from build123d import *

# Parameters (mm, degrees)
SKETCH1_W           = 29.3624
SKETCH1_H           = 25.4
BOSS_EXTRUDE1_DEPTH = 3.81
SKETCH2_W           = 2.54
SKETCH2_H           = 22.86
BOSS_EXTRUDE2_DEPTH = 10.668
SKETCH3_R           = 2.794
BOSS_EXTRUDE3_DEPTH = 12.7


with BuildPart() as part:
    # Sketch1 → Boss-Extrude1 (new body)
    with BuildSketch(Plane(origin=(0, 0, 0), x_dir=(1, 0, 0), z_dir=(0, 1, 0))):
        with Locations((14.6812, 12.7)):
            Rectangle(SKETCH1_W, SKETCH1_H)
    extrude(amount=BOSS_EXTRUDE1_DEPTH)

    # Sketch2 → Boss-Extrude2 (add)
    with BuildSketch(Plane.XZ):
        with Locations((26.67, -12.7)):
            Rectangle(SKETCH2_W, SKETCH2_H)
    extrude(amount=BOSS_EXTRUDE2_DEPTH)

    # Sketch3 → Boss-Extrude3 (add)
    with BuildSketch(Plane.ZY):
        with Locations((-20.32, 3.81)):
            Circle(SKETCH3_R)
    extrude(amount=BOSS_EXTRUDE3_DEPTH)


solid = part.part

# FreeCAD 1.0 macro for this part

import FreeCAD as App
import Part
import Sketcher
Q = App.Units.Quantity

doc = App.newDocument("Part")
body = doc.addObject("PartDesign::Body", "Body")

# Sketch on XZ plane
sketch1 = doc.addObject("Sketcher::SketchObject", "Sketch")
body.addObject(sketch1)
sketch1.AttachmentSupport = (doc.XZ_Plane, [""])
sketch1.MapMode = "FlatFace"
sketch1.addGeometry([
    Part.LineSegment(App.Vector(0, -25, 0), App.Vector(0, 0, 0)),
    Part.LineSegment(App.Vector(0, 0, 0), App.Vector(29, 0, 0)),
    Part.LineSegment(App.Vector(29, 0, 0), App.Vector(29, -25, 0)),
    Part.LineSegment(App.Vector(29, -25, 0), App.Vector(0, -25, 0)),
], False)
sketch1.addConstraint([
    Sketcher.Constraint("Coincident", 0, 2, 1, 1),
    Sketcher.Constraint("Coincident", 1, 2, 2, 1),
    Sketcher.Constraint("Coincident", 2, 2, 3, 1),
    Sketcher.Constraint("Coincident", 3, 2, 0, 1),
    Sketcher.Constraint("Vertical", 0),
    Sketcher.Constraint("Horizontal", 1),
    Sketcher.Constraint("Vertical", 2),
    Sketcher.Constraint("Horizontal", 3),
    Sketcher.Constraint("Coincident", 0, 2, -1, 1),
    Sketcher.Constraint("DistanceY", 0, 1, 0, 2, Q("1 in")),
    Sketcher.Constraint("DistanceX", 1, 1, 1, 2, Q("1.156 in")),
])
pad1 = doc.addObject("PartDesign::Pad", "Pad")
body.addObject(pad1)
pad1.Profile = sketch1
pad1.Length = Q("0.15 in")
pad1.Reversed = True

# Sketch on XZ plane
sketch2 = doc.addObject("Sketcher::SketchObject", "Sketch001")
body.addObject(sketch2)
sketch2.AttachmentSupport = (doc.XZ_Plane, [""])
sketch2.MapMode = "FlatFace"
sketch2.addGeometry([
    Part.LineSegment(App.Vector(25.4, -1.3, 0), App.Vector(25.4, -24.1, 0)),
    Part.LineSegment(App.Vector(25.4, -24.1, 0), App.Vector(27.9, -24.1, 0)),
    Part.LineSegment(App.Vector(27.9, -24.1, 0), App.Vector(27.9, -1.3, 0)),
    Part.LineSegment(App.Vector(27.9, -1.3, 0), App.Vector(25.4, -1.3, 0)),
], False)
sketch2.addConstraint([
    Sketcher.Constraint("Coincident", 0, 2, 1, 1),
    Sketcher.Constraint("Coincident", 1, 2, 2, 1),
    Sketcher.Constraint("Coincident", 2, 2, 3, 1),
    Sketcher.Constraint("Coincident", 3, 2, 0, 1),
    Sketcher.Constraint("Vertical", 0),
    Sketcher.Constraint("Horizontal", 1),
    Sketcher.Constraint("Vertical", 2),
    Sketcher.Constraint("Horizontal", 3),
    Sketcher.Constraint("DistanceX", 1, 1, 1, 2, Q("0.1 in")),
    Sketcher.Constraint("DistanceY", 0, 2, 0, 1, Q("0.9 in")),
    Sketcher.Constraint("DistanceX", -1, 1, 0, 2, Q("1 in")),
    Sketcher.Constraint("DistanceY", 0, 2, -1, 1, Q("0.95 in")),
])
pad2 = doc.addObject("PartDesign::Pad", "Pad001")
body.addObject(pad2)
pad2.Profile = sketch2
pad2.Length = Q("0.42 in")

# Sketch on YZ plane
sketch3 = doc.addObject("Sketcher::SketchObject", "Sketch002")
body.addObject(sketch3)
sketch3.AttachmentSupport = (doc.YZ_Plane, [""])
sketch3.MapMode = "FlatFace"
sketch3.addGeometry(Part.Circle(App.Vector(3.8, -20.3, 0), App.Vector(0, 0, 1), 2.8), False)
sketch3.addConstraint([
    Sketcher.Constraint("Diameter", 0, Q("0.22 in")),
    Sketcher.Constraint("DistanceY", 0, 3, -1, 1, Q("0.8 in")),
    Sketcher.Constraint("DistanceX", -1, 1, 0, 3, Q("0.15 in")),
])
pad3 = doc.addObject("PartDesign::Pad", "Pad002")
body.addObject(pad3)
pad3.Profile = sketch3
pad3.Length = Q("0.5 in")
pad3.Reversed = True

doc.recompute()
